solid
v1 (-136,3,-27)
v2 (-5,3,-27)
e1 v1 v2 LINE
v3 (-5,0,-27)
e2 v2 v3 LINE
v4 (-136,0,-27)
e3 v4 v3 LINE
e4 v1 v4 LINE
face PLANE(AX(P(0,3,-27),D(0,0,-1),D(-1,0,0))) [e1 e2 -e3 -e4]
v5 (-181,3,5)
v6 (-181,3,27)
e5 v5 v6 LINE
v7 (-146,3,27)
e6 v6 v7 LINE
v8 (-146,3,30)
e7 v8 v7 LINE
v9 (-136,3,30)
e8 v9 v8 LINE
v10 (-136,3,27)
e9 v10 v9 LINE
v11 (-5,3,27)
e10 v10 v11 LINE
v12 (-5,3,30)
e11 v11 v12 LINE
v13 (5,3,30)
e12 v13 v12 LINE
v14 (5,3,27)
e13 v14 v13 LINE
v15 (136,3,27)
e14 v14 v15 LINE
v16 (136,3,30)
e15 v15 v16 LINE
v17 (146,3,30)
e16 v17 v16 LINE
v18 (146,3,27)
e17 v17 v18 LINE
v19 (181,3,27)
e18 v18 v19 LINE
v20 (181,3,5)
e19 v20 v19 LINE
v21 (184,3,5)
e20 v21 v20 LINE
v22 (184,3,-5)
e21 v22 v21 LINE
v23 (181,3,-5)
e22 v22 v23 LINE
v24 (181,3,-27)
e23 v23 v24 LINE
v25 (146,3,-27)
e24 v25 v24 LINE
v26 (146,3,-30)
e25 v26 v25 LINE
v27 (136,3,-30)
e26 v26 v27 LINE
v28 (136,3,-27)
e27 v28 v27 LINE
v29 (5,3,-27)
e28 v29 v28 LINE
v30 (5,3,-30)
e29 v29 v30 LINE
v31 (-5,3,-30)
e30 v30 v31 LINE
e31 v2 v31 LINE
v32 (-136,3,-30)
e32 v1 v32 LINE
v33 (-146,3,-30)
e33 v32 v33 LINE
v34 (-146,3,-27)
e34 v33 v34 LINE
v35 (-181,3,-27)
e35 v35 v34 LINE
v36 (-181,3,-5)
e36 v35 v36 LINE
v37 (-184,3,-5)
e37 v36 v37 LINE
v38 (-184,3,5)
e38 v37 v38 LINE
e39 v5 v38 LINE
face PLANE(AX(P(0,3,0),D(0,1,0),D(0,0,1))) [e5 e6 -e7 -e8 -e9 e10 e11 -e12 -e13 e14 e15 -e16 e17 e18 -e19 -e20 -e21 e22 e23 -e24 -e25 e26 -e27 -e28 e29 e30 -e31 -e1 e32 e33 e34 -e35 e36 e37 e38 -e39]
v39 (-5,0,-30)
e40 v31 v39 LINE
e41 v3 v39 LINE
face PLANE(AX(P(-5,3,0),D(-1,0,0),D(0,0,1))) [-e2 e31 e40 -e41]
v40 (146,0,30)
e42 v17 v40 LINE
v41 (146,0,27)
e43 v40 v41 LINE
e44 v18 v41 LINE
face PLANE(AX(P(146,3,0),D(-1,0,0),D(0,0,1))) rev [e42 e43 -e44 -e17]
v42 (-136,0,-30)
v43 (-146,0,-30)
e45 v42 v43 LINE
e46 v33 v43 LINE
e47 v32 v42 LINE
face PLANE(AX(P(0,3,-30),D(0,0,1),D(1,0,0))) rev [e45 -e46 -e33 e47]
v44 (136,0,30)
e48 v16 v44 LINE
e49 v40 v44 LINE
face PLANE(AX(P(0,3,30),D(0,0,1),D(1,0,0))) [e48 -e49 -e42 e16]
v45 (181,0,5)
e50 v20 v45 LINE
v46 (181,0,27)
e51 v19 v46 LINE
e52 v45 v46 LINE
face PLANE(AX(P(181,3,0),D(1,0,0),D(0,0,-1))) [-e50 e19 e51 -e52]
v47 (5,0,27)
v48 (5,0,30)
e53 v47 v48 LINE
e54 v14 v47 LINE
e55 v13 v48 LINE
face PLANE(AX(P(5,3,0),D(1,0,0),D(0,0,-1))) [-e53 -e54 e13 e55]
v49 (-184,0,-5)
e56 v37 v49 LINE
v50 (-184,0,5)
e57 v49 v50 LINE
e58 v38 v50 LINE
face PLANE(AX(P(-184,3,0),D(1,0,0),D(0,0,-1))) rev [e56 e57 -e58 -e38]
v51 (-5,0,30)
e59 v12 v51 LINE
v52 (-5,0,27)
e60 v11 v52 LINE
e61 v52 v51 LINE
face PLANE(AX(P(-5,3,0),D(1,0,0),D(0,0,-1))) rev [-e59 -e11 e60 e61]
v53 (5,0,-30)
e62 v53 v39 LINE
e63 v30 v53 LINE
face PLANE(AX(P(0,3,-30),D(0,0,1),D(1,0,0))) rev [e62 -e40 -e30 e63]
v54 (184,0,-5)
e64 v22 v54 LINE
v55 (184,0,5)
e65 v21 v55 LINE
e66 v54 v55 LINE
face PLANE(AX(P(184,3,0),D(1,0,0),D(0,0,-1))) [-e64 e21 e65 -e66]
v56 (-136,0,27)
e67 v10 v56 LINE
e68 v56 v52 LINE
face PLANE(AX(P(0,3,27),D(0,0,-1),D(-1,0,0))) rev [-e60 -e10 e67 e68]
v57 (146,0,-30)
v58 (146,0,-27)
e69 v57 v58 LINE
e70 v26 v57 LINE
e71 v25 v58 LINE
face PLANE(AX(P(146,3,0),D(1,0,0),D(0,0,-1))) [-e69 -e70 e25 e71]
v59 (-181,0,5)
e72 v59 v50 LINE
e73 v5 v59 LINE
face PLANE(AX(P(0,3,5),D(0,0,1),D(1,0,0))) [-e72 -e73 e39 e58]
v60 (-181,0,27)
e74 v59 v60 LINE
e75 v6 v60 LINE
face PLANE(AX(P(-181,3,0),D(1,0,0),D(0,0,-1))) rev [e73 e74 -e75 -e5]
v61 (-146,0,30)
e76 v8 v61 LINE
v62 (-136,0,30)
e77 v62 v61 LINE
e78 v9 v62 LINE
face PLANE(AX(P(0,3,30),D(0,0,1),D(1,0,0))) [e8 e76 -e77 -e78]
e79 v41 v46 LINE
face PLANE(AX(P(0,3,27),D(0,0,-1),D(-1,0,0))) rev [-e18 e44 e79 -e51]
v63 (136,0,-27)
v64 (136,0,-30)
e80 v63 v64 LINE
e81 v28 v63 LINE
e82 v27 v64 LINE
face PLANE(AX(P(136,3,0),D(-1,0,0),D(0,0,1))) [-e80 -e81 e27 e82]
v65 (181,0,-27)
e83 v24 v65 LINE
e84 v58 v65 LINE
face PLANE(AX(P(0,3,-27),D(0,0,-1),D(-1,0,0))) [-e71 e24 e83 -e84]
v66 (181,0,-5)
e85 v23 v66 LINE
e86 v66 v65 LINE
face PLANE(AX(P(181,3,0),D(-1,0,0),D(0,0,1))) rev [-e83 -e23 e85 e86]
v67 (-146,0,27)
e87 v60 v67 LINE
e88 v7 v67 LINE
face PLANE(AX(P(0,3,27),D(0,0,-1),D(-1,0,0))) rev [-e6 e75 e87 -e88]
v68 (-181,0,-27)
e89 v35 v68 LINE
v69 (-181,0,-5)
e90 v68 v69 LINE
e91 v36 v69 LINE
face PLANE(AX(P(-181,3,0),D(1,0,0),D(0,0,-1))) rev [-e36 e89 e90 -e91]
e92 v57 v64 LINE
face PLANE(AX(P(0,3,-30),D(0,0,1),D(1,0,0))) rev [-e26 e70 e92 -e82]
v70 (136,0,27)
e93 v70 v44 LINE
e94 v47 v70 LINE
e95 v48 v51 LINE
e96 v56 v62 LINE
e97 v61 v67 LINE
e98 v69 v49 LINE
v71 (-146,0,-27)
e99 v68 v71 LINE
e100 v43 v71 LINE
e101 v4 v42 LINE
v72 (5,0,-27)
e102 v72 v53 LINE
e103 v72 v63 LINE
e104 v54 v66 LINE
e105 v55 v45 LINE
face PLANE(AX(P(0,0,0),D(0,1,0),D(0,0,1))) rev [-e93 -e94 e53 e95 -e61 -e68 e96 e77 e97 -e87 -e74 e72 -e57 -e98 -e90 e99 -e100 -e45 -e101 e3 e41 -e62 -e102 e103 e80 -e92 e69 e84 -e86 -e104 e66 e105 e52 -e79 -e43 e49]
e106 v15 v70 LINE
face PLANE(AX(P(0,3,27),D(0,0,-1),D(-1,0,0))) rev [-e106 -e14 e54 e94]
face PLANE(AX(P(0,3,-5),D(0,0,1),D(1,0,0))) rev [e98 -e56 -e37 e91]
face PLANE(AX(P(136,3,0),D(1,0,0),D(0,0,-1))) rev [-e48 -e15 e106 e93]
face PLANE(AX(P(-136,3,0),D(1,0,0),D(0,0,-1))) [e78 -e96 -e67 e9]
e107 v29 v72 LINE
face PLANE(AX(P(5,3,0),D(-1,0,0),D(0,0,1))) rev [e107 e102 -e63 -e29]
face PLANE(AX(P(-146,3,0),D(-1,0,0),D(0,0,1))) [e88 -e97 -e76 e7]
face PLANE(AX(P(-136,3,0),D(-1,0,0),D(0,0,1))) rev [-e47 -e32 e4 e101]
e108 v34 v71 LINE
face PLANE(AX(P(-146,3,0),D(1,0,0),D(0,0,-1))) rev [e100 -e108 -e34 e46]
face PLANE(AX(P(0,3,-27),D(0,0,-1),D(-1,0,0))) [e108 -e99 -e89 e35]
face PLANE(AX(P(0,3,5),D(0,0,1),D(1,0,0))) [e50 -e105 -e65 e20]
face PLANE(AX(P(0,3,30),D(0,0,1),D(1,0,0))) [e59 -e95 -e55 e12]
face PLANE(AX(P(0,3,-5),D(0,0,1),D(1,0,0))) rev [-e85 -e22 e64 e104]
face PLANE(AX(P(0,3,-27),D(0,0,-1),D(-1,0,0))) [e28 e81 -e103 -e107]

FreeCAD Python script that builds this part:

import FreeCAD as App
import Part
import Sketcher
Q = App.Units.Quantity


def add_polygon(sketch, points):
    """Adds a closed chain of lines whose ends are joined by coincident constraints."""
    first, n = sketch.GeometryCount, len(points)
    for a, b in zip(points, points[1:] + points[:1]):
        sketch.addGeometry(Part.LineSegment(App.Vector(*a, 0), App.Vector(*b, 0)), False)
    for i in range(n):
        sketch.addConstraint(Sketcher.Constraint("Coincident", first + i, 2, first + (i + 1) % n, 1))

doc = App.newDocument("Part")
body = doc.addObject("PartDesign::Body", "Body")

sketch1 = body.newObject("Sketcher::SketchObject", "Sketch")
sketch1.AttachmentSupport = (doc.getObject("XZ_Plane"), [""])
sketch1.MapMode = "FlatFace"
add_polygon(sketch1, [(-181, -27), (-181, -5), (-184, -5), (-184, 5), (-181, 5), (-181, 27), (-146, 27), (-146, 30), (-136, 30), (-136, 27), (-5, 27), (-5, 30), (5, 30), (5, 27), (136, 27), (136, 30), (146, 30), (146, 27), (181, 27), (181, 5), (184, 5), (184, -5), (181, -5), (181, -27), (146, -27), (146, -30), (136, -30), (136, -27), (5, -27), (5, -30), (-5, -30), (-5, -27), (-136, -27), (-136, -30), (-146, -30), (-146, -27)])
sketch1.addConstraint(Sketcher.Constraint("Vertical", 0))
sketch1.addConstraint(Sketcher.Constraint("Horizontal", 1))
sketch1.addConstraint(Sketcher.Constraint("Vertical", 2))
sketch1.addConstraint(Sketcher.Constraint("Horizontal", 3))
sketch1.addConstraint(Sketcher.Constraint("Vertical", 4))
sketch1.addConstraint(Sketcher.Constraint("Horizontal", 5))
sketch1.addConstraint(Sketcher.Constraint("Vertical", 6))
sketch1.addConstraint(Sketcher.Constraint("Horizontal", 7))
sketch1.addConstraint(Sketcher.Constraint("Vertical", 8))
sketch1.addConstraint(Sketcher.Constraint("Horizontal", 9))
sketch1.addConstraint(Sketcher.Constraint("Vertical", 10))
sketch1.addConstraint(Sketcher.Constraint("Horizontal", 11))
sketch1.addConstraint(Sketcher.Constraint("Vertical", 12))
sketch1.addConstraint(Sketcher.Constraint("Horizontal", 13))
sketch1.addConstraint(Sketcher.Constraint("Vertical", 14))
sketch1.addConstraint(Sketcher.Constraint("Horizontal", 15))
sketch1.addConstraint(Sketcher.Constraint("Vertical", 16))
sketch1.addConstraint(Sketcher.Constraint("Horizontal", 17))
sketch1.addConstraint(Sketcher.Constraint("Vertical", 18))
sketch1.addConstraint(Sketcher.Constraint("Horizontal", 19))
sketch1.addConstraint(Sketcher.Constraint("Vertical", 20))
sketch1.addConstraint(Sketcher.Constraint("Horizontal", 21))
sketch1.addConstraint(Sketcher.Constraint("Vertical", 22))
sketch1.addConstraint(Sketcher.Constraint("Horizontal", 23))
sketch1.addConstraint(Sketcher.Constraint("Vertical", 24))
sketch1.addConstraint(Sketcher.Constraint("Horizontal", 25))
sketch1.addConstraint(Sketcher.Constraint("Vertical", 26))
sketch1.addConstraint(Sketcher.Constraint("Horizontal", 27))
sketch1.addConstraint(Sketcher.Constraint("Vertical", 28))
sketch1.addConstraint(Sketcher.Constraint("Horizontal", 29))
sketch1.addConstraint(Sketcher.Constraint("Vertical", 30))
sketch1.addConstraint(Sketcher.Constraint("Horizontal", 31))
sketch1.addConstraint(Sketcher.Constraint("Vertical", 32))
sketch1.addConstraint(Sketcher.Constraint("Horizontal", 33))
sketch1.addConstraint(Sketcher.Constraint("Vertical", 34))
sketch1.addConstraint(Sketcher.Constraint("Horizontal", 35))
sketch1.addConstraint(Sketcher.Constraint("Symmetric", 0, 2, 18, 2, -1, 1))
sketch1.addConstraint(Sketcher.Constraint("Symmetric", 2, 2, 20, 2, -1, 1))
sketch1.addConstraint(Sketcher.Constraint("Symmetric", 4, 2, 22, 2, -1, 1))
sketch1.addConstraint(Sketcher.Constraint("Symmetric", 6, 2, 24, 2, -1, 1))
sketch1.addConstraint(Sketcher.Constraint("Symmetric", 8, 2, 26, 2, -1, 1))
sketch1.addConstraint(Sketcher.Constraint("Symmetric", 10, 2, 28, 2, -1, 1))
sketch1.addConstraint(Sketcher.Constraint("Symmetric", 12, 2, 30, 2, -1, 1))
sketch1.addConstraint(Sketcher.Constraint("Symmetric", 14, 2, 32, 2, -1, 1))
sketch1.addConstraint(Sketcher.Constraint("Symmetric", 16, 2, 34, 2, -1, 1))
sketch1.addConstraint(Sketcher.Constraint("Symmetric", 9, 2, 12, 2, -2))
sketch1.addConstraint(Sketcher.Constraint("Symmetric", 7, 2, 14, 2, -2))
sketch1.addConstraint(Sketcher.Constraint("Symmetric", 5, 2, 16, 2, -2))
sketch1.addConstraint(Sketcher.Constraint("Symmetric", 3, 2, 18, 2, -2))
sketch1.addConstraint(Sketcher.Constraint("Horizontal", 5, 2, 8, 2))
sketch1.addConstraint(Sketcher.Constraint("Horizontal", 7, 2, 10, 2))
sketch1.addConstraint(Sketcher.Constraint("Equal", 7, 11))
sketch1.addConstraint(Sketcher.Constraint("Equal", 33, 2))
sketch1.addConstraint(Sketcher.Constraint("Equal", 21, 6))
sketch1.addConstraint(Sketcher.Constraint("DistanceX", 1, 2, 1, 1, Q("3 mm")))
sketch1.addConstraint(Sketcher.Constraint("DistanceX", 5, 1, 5, 2, Q("35 mm")))
sketch1.addConstraint(Sketcher.Constraint("DistanceX", 7, 1, 7, 2, Q("10 mm")))
sketch1.addConstraint(Sketcher.Constraint("DistanceX", 9, 1, 9, 2, Q("131 mm")))
sketch1.addConstraint(Sketcher.Constraint("DistanceY", 0, 1, 0, 2, Q("22 mm")))
pad1 = body.newObject("PartDesign::Pad", "Pad")
pad1.Profile = sketch1
pad1.Length = 3
pad1.Reversed = True

doc.recompute()
